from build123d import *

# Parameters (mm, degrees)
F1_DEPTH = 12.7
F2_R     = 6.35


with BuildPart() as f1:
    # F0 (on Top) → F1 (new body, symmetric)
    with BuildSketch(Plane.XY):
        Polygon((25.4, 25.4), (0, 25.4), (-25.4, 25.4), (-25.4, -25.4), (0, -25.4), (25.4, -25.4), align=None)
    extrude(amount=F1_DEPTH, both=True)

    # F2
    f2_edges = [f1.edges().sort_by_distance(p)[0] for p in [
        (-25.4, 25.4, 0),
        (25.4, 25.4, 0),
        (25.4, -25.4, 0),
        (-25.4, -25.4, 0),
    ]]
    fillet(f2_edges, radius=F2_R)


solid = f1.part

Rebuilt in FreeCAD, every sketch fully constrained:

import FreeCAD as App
import Part
import Sketcher
from FreeCAD import Vector
Q = App.Units.Quantity


def edges_at(feature, points):
    """Names of the edges that pass closest to the given points."""
    edges = feature.Shape.Edges
    near = lambda p: min(range(len(edges)), key=lambda i: edges[i].distToShape(Part.Vertex(*p))[0])
    return sorted({f"Edge{near(p) + 1}" for p in points})


def add_polygon(sketch, points):
    """Adds a closed chain of lines whose ends are joined by coincident constraints."""
    first, n = sketch.GeometryCount, len(points)
    for a, b in zip(points, points[1:] + points[:1]):
        sketch.addGeometry(Part.LineSegment(App.Vector(*a, 0), App.Vector(*b, 0)), False)
    for i in range(n):
        sketch.addConstraint(Sketcher.Constraint("Coincident", first + i, 2, first + (i + 1) % n, 1))

doc = App.newDocument("Part")
body = doc.addObject("PartDesign::Body", "Body")

# Sketch on XY plane
sketch1 = body.newObject("Sketcher::SketchObject", "Sketch")
sketch1.AttachmentSupport = (doc.getObject("XY_Plane"), [""])
sketch1.MapMode = "FlatFace"
add_polygon(sketch1, [(25.4, 25.4), (-25.4, 25.4), (-25.4, -25.4), (25.4, -25.4)])  # lines 0-3
sketch1.addConstraint(Sketcher.Constraint("Horizontal", 0))
sketch1.addConstraint(Sketcher.Constraint("Vertical", 1))
sketch1.addConstraint(Sketcher.Constraint("Horizontal", 2))
sketch1.addConstraint(Sketcher.Constraint("Vertical", 3))
sketch1.addConstraint(Sketcher.Constraint("Symmetric", 0, 2, 2, 2, -1, 1))
sketch1.addConstraint(Sketcher.Constraint("Equal", 2, 1))
sketch1.addConstraint(Sketcher.Constraint("DistanceX", 0, 2, 0, 1, Q("2 in")))
pad1 = body.newObject("PartDesign::Pad", "Pad")
pad1.Profile = sketch1
pad1.Length = Q("1 in")
pad1.Midplane = True
doc.recompute()

fillet = body.newObject("PartDesign::Fillet", "Fillet")
fillet.Base = (pad1, edges_at(pad1, [
    (-25.4, 25.4, 0),
    (25.4, 25.4, 0),
    (25.4, -25.4, 0),
    (-25.4, -25.4, 0),
]))
fillet.Radius = Q("0.25 in")

doc.recompute()
